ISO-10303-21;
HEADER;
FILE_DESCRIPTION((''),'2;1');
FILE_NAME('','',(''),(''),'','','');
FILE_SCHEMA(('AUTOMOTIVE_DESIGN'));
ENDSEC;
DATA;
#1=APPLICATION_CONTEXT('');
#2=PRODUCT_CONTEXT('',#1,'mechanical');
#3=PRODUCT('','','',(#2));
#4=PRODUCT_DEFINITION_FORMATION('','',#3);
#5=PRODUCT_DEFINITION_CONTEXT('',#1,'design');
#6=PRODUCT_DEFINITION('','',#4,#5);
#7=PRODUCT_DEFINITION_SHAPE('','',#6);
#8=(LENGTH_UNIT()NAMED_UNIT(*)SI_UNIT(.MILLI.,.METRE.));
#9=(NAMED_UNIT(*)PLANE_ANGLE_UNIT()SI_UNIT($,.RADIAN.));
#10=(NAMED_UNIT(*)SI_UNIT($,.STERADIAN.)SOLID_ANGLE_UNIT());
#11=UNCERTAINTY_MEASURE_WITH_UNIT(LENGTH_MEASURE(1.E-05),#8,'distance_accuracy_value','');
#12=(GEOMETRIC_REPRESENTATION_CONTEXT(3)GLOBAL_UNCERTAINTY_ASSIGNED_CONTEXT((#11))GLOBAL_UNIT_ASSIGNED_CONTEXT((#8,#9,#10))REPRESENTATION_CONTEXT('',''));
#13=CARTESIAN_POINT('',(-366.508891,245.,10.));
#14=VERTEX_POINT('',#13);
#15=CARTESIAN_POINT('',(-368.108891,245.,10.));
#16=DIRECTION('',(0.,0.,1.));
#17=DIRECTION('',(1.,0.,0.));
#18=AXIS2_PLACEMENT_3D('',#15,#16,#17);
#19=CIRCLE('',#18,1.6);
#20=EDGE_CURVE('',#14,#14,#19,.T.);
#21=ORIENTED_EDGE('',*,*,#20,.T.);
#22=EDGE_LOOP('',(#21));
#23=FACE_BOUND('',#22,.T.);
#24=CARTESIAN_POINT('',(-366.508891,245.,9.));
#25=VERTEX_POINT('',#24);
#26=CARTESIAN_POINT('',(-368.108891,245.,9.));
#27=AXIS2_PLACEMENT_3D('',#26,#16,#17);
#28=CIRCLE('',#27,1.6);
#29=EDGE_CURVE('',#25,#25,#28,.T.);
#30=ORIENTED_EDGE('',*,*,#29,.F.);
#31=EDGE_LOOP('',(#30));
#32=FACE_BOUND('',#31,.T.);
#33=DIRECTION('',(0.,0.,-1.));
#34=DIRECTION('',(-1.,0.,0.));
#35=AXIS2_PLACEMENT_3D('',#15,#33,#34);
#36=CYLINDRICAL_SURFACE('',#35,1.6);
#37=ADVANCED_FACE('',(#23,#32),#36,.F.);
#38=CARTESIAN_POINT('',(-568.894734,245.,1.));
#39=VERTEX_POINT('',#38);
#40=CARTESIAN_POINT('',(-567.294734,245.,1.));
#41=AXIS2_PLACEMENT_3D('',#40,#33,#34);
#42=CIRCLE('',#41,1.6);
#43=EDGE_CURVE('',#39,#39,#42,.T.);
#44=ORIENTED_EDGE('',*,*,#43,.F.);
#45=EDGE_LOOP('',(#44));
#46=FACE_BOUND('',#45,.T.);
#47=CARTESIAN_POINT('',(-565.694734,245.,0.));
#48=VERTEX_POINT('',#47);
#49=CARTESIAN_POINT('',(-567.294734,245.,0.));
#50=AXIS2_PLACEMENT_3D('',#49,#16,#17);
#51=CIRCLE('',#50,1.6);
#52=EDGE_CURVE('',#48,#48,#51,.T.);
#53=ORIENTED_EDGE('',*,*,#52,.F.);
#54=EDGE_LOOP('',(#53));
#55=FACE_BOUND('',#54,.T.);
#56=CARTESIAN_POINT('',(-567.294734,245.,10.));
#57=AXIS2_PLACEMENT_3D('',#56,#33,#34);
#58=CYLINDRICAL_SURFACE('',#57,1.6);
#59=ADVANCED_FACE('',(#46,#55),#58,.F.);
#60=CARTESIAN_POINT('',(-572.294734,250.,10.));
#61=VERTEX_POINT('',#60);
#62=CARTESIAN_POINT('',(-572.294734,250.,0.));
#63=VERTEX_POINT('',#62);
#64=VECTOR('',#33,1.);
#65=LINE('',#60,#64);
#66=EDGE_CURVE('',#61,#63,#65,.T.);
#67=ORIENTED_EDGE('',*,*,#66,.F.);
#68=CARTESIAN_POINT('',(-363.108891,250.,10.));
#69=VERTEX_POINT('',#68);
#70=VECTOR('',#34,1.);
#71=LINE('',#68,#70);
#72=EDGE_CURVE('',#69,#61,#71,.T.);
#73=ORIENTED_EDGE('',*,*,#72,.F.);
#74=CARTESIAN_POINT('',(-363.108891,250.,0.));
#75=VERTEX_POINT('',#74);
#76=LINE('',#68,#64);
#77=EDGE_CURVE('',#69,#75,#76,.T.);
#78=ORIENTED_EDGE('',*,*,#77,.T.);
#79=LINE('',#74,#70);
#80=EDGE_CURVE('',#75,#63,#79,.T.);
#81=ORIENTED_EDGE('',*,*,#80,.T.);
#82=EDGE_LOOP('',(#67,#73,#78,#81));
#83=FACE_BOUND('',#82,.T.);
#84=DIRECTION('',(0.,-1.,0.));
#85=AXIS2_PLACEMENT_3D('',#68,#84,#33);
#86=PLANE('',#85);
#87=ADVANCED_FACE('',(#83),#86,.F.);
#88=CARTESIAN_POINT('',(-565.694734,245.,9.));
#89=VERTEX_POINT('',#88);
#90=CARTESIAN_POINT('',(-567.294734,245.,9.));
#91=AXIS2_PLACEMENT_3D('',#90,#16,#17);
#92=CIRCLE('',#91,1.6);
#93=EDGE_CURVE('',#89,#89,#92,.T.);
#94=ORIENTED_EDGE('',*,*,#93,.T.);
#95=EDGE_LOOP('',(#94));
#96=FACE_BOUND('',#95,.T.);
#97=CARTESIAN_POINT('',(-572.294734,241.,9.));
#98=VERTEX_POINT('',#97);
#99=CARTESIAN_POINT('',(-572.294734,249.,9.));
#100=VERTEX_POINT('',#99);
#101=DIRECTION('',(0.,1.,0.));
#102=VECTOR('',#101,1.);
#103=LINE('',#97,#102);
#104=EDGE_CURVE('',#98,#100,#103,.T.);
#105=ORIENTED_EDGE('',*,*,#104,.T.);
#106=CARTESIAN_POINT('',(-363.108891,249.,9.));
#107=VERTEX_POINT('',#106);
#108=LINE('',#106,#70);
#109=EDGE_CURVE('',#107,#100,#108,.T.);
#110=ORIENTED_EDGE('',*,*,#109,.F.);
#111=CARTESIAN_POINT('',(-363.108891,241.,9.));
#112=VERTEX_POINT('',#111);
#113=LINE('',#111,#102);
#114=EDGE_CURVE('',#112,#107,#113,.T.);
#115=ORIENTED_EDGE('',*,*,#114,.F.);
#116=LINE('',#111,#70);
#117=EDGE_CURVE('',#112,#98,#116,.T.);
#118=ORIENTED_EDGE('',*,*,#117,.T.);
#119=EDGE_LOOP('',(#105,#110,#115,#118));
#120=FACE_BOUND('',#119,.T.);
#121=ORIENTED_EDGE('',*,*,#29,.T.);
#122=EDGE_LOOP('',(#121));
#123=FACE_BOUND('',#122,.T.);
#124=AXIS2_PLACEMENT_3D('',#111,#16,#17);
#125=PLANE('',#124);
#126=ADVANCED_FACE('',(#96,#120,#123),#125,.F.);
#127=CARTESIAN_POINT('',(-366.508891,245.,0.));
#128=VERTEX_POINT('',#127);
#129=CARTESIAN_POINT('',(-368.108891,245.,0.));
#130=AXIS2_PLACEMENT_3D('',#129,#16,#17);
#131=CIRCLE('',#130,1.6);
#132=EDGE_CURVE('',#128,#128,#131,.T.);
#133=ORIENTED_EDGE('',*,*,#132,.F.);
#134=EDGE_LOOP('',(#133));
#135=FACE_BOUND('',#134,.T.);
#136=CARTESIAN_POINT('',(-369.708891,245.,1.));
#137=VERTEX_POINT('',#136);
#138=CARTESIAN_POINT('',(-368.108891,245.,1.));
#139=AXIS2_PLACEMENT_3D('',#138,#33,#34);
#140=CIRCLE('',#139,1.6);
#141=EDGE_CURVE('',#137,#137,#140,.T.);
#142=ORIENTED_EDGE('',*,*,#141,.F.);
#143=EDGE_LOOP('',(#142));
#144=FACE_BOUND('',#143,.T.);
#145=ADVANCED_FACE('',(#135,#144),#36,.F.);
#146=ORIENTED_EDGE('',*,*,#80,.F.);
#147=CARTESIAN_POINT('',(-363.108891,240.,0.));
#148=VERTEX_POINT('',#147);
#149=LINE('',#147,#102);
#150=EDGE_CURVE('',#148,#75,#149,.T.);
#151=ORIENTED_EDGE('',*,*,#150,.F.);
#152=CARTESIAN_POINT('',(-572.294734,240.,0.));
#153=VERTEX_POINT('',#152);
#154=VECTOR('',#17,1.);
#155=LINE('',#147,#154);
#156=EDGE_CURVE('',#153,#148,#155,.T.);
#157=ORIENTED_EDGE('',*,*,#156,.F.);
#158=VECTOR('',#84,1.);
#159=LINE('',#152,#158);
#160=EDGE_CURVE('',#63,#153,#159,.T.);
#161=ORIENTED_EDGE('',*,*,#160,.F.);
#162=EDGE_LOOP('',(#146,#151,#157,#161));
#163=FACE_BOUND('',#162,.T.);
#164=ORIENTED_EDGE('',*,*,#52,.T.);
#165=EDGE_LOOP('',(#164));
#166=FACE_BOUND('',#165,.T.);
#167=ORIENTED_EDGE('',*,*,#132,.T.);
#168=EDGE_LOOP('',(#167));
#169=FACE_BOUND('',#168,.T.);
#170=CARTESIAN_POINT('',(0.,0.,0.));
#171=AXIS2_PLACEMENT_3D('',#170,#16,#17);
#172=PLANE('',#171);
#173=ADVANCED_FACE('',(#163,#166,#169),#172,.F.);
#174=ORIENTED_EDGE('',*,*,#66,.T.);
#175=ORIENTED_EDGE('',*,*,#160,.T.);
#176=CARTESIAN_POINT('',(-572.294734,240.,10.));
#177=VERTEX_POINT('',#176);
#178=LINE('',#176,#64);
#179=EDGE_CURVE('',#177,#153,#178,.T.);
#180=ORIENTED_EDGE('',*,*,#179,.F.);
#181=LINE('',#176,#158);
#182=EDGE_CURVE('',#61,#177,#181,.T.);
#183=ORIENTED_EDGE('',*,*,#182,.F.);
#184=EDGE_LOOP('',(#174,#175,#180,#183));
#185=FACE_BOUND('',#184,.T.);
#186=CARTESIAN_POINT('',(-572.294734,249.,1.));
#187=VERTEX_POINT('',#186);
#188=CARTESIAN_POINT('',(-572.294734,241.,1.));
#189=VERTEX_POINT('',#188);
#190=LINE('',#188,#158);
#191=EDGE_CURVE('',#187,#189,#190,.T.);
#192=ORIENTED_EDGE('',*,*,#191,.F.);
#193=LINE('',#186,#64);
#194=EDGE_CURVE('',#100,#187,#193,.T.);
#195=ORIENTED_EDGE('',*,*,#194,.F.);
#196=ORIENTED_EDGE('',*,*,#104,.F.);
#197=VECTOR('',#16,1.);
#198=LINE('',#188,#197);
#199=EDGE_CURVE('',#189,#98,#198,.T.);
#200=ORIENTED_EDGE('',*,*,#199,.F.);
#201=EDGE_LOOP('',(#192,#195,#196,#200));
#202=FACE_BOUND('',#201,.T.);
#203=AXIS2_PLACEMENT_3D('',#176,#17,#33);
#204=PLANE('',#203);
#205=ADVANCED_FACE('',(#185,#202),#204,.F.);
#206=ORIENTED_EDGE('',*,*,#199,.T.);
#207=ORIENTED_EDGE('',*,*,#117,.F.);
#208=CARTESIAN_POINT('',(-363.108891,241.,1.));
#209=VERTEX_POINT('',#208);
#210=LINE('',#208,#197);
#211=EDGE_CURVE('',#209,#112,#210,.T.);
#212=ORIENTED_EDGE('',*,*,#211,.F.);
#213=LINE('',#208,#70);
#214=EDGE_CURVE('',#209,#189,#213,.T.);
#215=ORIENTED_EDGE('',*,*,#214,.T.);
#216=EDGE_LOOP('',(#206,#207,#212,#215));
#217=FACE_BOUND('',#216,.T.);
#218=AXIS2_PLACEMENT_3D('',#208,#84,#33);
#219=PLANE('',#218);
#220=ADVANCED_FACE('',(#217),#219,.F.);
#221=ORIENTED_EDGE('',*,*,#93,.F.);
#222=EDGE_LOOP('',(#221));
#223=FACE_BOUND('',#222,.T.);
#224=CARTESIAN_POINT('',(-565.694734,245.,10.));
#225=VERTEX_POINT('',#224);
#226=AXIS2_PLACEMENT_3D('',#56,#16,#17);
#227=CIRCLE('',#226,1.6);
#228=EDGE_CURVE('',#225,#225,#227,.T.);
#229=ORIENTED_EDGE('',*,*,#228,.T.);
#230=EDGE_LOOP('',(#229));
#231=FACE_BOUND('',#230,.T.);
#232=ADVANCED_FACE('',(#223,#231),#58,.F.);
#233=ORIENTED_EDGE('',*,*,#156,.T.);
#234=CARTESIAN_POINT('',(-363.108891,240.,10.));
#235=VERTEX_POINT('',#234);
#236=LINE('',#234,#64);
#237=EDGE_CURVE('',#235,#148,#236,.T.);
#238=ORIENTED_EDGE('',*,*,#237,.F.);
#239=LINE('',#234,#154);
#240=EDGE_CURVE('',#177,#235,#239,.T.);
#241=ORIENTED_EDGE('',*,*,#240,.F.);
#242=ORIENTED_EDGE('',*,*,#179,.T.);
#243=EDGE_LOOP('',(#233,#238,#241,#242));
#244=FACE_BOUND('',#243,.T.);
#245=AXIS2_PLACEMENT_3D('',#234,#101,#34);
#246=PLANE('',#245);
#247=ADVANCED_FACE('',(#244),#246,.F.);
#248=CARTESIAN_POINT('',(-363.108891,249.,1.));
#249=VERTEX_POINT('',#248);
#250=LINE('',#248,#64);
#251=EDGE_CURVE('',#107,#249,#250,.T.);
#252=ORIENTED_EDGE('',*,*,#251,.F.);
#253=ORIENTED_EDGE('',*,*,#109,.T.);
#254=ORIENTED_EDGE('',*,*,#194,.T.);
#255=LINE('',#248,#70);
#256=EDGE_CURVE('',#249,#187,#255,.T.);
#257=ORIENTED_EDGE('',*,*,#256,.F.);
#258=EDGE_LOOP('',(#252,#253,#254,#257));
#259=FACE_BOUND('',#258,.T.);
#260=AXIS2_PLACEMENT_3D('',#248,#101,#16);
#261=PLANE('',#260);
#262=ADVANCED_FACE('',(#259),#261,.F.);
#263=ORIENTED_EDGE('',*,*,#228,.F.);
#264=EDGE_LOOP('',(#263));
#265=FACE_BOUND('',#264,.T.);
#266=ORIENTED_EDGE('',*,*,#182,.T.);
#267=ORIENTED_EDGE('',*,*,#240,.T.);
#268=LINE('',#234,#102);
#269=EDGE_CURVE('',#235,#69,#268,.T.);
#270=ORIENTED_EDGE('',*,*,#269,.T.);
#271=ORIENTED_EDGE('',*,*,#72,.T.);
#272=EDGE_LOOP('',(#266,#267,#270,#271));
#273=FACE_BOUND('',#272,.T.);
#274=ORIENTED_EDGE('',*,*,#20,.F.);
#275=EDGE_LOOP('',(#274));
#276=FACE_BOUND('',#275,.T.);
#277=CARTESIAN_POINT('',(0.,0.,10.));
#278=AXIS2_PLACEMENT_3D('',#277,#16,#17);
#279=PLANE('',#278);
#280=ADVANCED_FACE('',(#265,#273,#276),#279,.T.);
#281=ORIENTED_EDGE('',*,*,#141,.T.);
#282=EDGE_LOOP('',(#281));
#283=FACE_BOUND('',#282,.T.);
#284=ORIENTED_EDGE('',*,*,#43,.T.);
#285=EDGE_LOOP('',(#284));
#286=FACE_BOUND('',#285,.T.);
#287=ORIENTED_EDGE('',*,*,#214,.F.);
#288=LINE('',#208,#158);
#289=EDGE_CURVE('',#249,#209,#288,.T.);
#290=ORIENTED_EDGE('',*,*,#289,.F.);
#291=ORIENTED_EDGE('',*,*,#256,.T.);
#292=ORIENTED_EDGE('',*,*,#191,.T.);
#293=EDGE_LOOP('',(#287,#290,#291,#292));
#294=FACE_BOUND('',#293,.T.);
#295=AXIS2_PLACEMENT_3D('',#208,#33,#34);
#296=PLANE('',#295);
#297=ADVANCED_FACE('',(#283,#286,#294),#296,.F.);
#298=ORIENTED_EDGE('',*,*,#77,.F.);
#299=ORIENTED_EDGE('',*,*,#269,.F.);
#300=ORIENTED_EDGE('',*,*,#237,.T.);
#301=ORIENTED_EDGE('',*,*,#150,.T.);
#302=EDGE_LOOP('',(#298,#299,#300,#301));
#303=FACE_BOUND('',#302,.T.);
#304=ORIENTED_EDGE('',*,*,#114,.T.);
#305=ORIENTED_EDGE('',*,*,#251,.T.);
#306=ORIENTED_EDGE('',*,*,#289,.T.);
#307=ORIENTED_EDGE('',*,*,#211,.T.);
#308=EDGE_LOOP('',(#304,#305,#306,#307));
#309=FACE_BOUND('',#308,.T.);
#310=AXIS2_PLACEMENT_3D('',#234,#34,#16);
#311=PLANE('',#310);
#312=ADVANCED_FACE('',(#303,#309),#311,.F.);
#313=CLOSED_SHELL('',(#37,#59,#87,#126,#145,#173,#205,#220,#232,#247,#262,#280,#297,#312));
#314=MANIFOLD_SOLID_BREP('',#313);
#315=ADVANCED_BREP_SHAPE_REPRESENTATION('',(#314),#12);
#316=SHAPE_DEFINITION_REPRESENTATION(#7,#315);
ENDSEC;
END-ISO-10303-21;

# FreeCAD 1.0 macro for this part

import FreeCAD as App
import Part
import Sketcher
from FreeCAD import Vector

doc = App.newDocument("Part")
body = doc.addObject("PartDesign::Body", "Body")

sketch1 = body.newObject("Sketcher::SketchObject", "Sketch")
sketch1.AttachmentSupport = (doc.getObject("XY_Plane"), [""])
sketch1.MapMode = "FlatFace"
sketch1.addGeometry(Part.LineSegment(Vector(-572.3, 250, 0), Vector(-572.3, 240, 0)), False)
sketch1.addGeometry(Part.LineSegment(Vector(-572.3, 240, 0), Vector(-363.1, 240, 0)), False)
sketch1.addGeometry(Part.LineSegment(Vector(-363.1, 240, 0), Vector(-363.1, 250, 0)), False)
sketch1.addGeometry(Part.LineSegment(Vector(-363.1, 250, 0), Vector(-572.3, 250, 0)), False)
sketch1.addGeometry(Part.Circle(Vector(-567.3, 245, 0), Vector(0, 0, 1), 1.6), False)
sketch1.addGeometry(Part.Circle(Vector(-368.1, 245, 0), Vector(0, 0, 1), 1.6), False)
sketch1.addConstraint(Sketcher.Constraint("Coincident", 0, 2, 1, 1))
sketch1.addConstraint(Sketcher.Constraint("Coincident", 1, 2, 2, 1))
sketch1.addConstraint(Sketcher.Constraint("Coincident", 2, 2, 3, 1))
sketch1.addConstraint(Sketcher.Constraint("Coincident", 3, 2, 0, 1))
sketch1.addConstraint(Sketcher.Constraint("Vertical", 0))
sketch1.addConstraint(Sketcher.Constraint("Horizontal", 1))
sketch1.addConstraint(Sketcher.Constraint("Vertical", 2))
sketch1.addConstraint(Sketcher.Constraint("Horizontal", 3))
sketch1.addConstraint(Sketcher.Constraint("Equal", 4, 5))
sketch1.addConstraint(Sketcher.Constraint("Horizontal", 4, 3, 5, 3))
sketch1.addConstraint(Sketcher.Constraint("Diameter", 4, 3.2))
sketch1.addConstraint(Sketcher.Constraint("DistanceY", 0, 2, 0, 1, 10.0))
sketch1.addConstraint(Sketcher.Constraint("DistanceY", -1, 1, 4, 3, 245.0))
sketch1.addConstraint(Sketcher.Constraint("DistanceY", -1, 1, 0, 2, 240.0))
sketch1.addConstraint(Sketcher.Constraint("DistanceX", 0, 2, 4, 3, 5.0))
sketch1.addConstraint(Sketcher.Constraint("DistanceX", 5, 3, 1, 2, 5.0))
sketch1.addConstraint(Sketcher.Constraint("DistanceX", 1, 1, 1, 2, 209.185843))
sketch1.addConstraint(Sketcher.Constraint("DistanceX", 5, 3, -1, 1, 368.108891))
pad1 = body.newObject("PartDesign::Pad", "Pad")
pad1.Profile = sketch1
pad1.Length = 10

sketch2 = body.newObject("Sketcher::SketchObject", "Sketch001")
sketch2.AttachmentSupport = (doc.getObject("YZ_Plane"), [""])
sketch2.MapMode = "FlatFace"
sketch2.AttachmentOffset = App.Placement(Vector(0, 0, -572.294734), App.Rotation())
sketch2.addGeometry(Part.LineSegment(Vector(249, 1, 0), Vector(241, 1, 0)), False)
sketch2.addGeometry(Part.LineSegment(Vector(241, 1, 0), Vector(241, 9, 0)), False)
sketch2.addGeometry(Part.LineSegment(Vector(241, 9, 0), Vector(249, 9, 0)), False)
sketch2.addGeometry(Part.LineSegment(Vector(249, 9, 0), Vector(249, 1, 0)), False)
sketch2.addConstraint(Sketcher.Constraint("Coincident", 0, 2, 1, 1))
sketch2.addConstraint(Sketcher.Constraint("Coincident", 1, 2, 2, 1))
sketch2.addConstraint(Sketcher.Constraint("Coincident", 2, 2, 3, 1))
sketch2.addConstraint(Sketcher.Constraint("Coincident", 3, 2, 0, 1))
sketch2.addConstraint(Sketcher.Constraint("Horizontal", 0))
sketch2.addConstraint(Sketcher.Constraint("Vertical", 1))
sketch2.addConstraint(Sketcher.Constraint("Horizontal", 2))
sketch2.addConstraint(Sketcher.Constraint("Vertical", 3))
sketch2.addConstraint(Sketcher.Constraint("Equal", 2, 1))
sketch2.addConstraint(Sketcher.Constraint("DistanceX", 0, 2, 0, 1, 8.0))
sketch2.addConstraint(Sketcher.Constraint("DistanceX", -1, 1, 0, 2, 241.0))
sketch2.addConstraint(Sketcher.Constraint("DistanceY", -1, 1, 0, 2, 1.0))
pocket1 = body.newObject("PartDesign::Pocket", "Pocket")
pocket1.Profile = sketch2
pocket1.Type = "ThroughAll"
pocket1.Reversed = True

doc.recompute()
